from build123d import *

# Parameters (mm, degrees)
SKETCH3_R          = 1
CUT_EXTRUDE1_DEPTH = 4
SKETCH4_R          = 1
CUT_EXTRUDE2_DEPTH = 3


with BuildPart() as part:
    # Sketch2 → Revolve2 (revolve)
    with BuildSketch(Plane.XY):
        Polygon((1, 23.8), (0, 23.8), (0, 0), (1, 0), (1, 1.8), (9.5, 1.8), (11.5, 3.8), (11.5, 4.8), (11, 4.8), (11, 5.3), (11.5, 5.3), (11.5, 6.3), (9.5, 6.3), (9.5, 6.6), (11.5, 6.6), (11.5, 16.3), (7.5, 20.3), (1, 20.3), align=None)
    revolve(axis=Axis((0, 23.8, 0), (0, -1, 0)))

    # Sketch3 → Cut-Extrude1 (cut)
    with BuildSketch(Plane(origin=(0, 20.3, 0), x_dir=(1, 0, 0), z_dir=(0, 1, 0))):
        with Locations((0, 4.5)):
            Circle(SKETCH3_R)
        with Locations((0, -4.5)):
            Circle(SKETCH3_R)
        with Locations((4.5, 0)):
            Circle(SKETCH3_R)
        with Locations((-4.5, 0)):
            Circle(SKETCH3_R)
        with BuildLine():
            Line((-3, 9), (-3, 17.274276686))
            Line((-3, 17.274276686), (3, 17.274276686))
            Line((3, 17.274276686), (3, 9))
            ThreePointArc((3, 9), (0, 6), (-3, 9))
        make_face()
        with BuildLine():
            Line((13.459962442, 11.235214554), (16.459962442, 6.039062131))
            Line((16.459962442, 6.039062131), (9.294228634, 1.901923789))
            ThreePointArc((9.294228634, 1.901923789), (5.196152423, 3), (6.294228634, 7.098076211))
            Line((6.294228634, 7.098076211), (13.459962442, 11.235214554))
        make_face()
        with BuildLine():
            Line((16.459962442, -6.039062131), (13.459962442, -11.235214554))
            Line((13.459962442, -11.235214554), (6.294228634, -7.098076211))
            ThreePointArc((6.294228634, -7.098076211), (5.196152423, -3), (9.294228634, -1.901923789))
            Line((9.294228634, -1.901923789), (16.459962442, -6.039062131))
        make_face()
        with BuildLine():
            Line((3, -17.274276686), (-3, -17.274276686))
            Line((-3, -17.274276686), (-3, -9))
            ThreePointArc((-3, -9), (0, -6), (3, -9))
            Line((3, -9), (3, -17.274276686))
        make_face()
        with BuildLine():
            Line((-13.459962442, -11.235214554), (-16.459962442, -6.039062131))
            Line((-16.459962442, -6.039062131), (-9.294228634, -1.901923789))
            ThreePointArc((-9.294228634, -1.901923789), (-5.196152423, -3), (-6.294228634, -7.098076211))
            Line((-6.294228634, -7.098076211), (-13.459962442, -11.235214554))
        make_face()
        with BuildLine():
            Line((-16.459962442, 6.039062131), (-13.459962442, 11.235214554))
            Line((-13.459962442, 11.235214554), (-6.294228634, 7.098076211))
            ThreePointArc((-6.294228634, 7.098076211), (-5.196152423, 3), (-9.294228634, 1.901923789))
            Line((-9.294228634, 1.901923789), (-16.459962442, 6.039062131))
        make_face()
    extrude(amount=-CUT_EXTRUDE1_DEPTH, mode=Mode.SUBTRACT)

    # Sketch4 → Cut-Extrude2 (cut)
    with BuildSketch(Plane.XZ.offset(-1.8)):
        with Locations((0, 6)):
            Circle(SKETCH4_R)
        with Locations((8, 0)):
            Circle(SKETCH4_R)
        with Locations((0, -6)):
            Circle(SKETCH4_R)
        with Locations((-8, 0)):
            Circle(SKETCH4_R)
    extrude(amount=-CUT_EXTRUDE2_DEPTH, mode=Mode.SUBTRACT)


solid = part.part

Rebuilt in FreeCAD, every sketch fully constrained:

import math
import FreeCAD as App
import Part
import Sketcher
Q = App.Units.Quantity


def add_polygon(sketch, points):
    """Adds a closed chain of lines whose ends are joined by coincident constraints."""
    first, n = sketch.GeometryCount, len(points)
    for a, b in zip(points, points[1:] + points[:1]):
        sketch.addGeometry(Part.LineSegment(App.Vector(*a, 0), App.Vector(*b, 0)), False)
    for i in range(n):
        sketch.addConstraint(Sketcher.Constraint("Coincident", first + i, 2, first + (i + 1) % n, 1))

doc = App.newDocument("Part")
body = doc.addObject("PartDesign::Body", "Body")

sketch1 = body.newObject("Sketcher::SketchObject", "Sketch")
sketch1.AttachmentSupport = (doc.getObject("XY_Plane"), [""])
sketch1.MapMode = "FlatFace"
add_polygon(sketch1, [(1, 23.8), (0, 23.8), (0, 0), (1, 0), (1, 1.8), (9.5, 1.8), (11.5, 3.8), (11.5, 4.8), (11, 4.8), (11, 5.3), (11.5, 5.3), (11.5, 6.3), (9.5, 6.3), (9.5, 6.6), (11.5, 6.6), (11.5, 16.3), (7.5, 20.3), (1, 20.3)])
sketch1.addConstraint([
    Sketcher.Constraint("Horizontal", 0),
    Sketcher.Constraint("Vertical", 1),
    Sketcher.Constraint("Horizontal", 2),
    Sketcher.Constraint("Vertical", 3),
    Sketcher.Constraint("Horizontal", 4),
    Sketcher.Constraint("Vertical", 6),
    Sketcher.Constraint("Horizontal", 7),
    Sketcher.Constraint("Vertical", 8),
    Sketcher.Constraint("Horizontal", 9),
    Sketcher.Constraint("Vertical", 10),
    Sketcher.Constraint("Horizontal", 11),
    Sketcher.Constraint("Vertical", 12),
    Sketcher.Constraint("Horizontal", 13),
    Sketcher.Constraint("Vertical", 14),
    Sketcher.Constraint("Horizontal", 16),
    Sketcher.Constraint("Vertical", 17),
    Sketcher.Constraint("Coincident", 1, 2, -1, 1),
    Sketcher.Constraint("Perpendicular", 5, 15),
    Sketcher.Constraint("Vertical", 6, 2, 9, 2),
    Sketcher.Constraint("Vertical", 4, 2, 11, 2),
    Sketcher.Constraint("Vertical", 10, 2, 13, 2),
    Sketcher.Constraint("Vertical", 3, 2, 16, 2),
    Sketcher.Constraint("Equal", 2, 6),
    Sketcher.Constraint("Equal", 9, 8),
    Sketcher.Constraint("Equal", 6, 10),
    Sketcher.Constraint("DistanceX", 0, 2, 0, 1, 1.0),
    Sketcher.Constraint("DistanceX", 11, 2, 11, 1, 2.0),
    Sketcher.Constraint("Angle", 5, Q("45 deg")),
    Sketcher.Constraint("DistanceX", 4, 1, 4, 2, 8.5),
    Sketcher.Constraint("DistanceX", 7, 2, 7, 1, 0.5),
    Sketcher.Constraint("DistanceX", 16, 2, 16, 1, 6.5),
    Sketcher.Constraint("DistanceY", 1, 2, 1, 1, 23.8),
    Sketcher.Constraint("DistanceY", 3, 1, 3, 2, 1.8),
    Sketcher.Constraint("DistanceY", 12, 1, 12, 2, 0.3),
    Sketcher.Constraint("DistanceY", 14, 1, 14, 2, 9.7),
])
revolution = body.newObject("PartDesign::Revolution", "Revolution")
revolution.Profile = sketch1
revolution.ReferenceAxis = (sketch1, ["V_Axis"])
revolution.Angle = 360

sketch2 = body.newObject("Sketcher::SketchObject", "Sketch001")
sketch2.AttachmentSupport = (doc.getObject("XZ_Plane"), [""])
sketch2.MapMode = "FlatFace"
sketch2.AttachmentOffset = App.Placement(App.Vector(0, 0, -20.3), App.Rotation())
sketch2.addGeometry([
    Part.Circle(App.Vector(0, -4.5, 0), App.Vector(0, 0, 1), 1),
    Part.Circle(App.Vector(0, 4.5, 0), App.Vector(0, 0, 1), 1),
    Part.Circle(App.Vector(4.5, 0, 0), App.Vector(0, 0, 1), 1),
    Part.Circle(App.Vector(-4.5, 0, 0), App.Vector(0, 0, 1), 1),
    Part.LineSegment(App.Vector(-3, -17.3, 0), App.Vector(-3, -9, 0)),
    Part.ArcOfCircle(Part.Circle(App.Vector(0, -9, 0), App.Vector(0, 0, 1), 3), math.radians(0), math.radians(180)),
    Part.LineSegment(App.Vector(3, -9, 0), App.Vector(3, -17.3, 0)),
    Part.LineSegment(App.Vector(3, -17.3, 0), App.Vector(-3, -17.3, 0)),
    Part.LineSegment(App.Vector(16.5, -6, 0), App.Vector(13.5, -11.2, 0)),
    Part.LineSegment(App.Vector(13.5, -11.2, 0), App.Vector(6.3, -7.1, 0)),
    Part.ArcOfCircle(Part.Circle(App.Vector(7.8, -4.5, 0), App.Vector(0, 0, 1), 3), math.radians(60), math.radians(240)),
    Part.LineSegment(App.Vector(9.3, -1.9, 0), App.Vector(16.5, -6, 0)),
    Part.LineSegment(App.Vector(13.5, 11.2, 0), App.Vector(16.5, 6, 0)),
    Part.LineSegment(App.Vector(16.5, 6, 0), App.Vector(9.3, 1.9, 0)),
    Part.ArcOfCircle(Part.Circle(App.Vector(7.8, 4.5, 0), App.Vector(0, 0, 1), 3), math.radians(120), math.radians(300)),
    Part.LineSegment(App.Vector(6.3, 7.1, 0), App.Vector(13.5, 11.2, 0)),
    Part.LineSegment(App.Vector(-3, 17.3, 0), App.Vector(3, 17.3, 0)),
    Part.LineSegment(App.Vector(3, 17.3, 0), App.Vector(3, 9, 0)),
    Part.ArcOfCircle(Part.Circle(App.Vector(0, 9, 0), App.Vector(0, 0, 1), 3), math.radians(180), math.radians(360)),
    Part.LineSegment(App.Vector(-3, 9, 0), App.Vector(-3, 17.3, 0)),
    Part.LineSegment(App.Vector(-16.5, 6, 0), App.Vector(-13.5, 11.2, 0)),
    Part.LineSegment(App.Vector(-13.5, 11.2, 0), App.Vector(-6.3, 7.1, 0)),
    Part.ArcOfCircle(Part.Circle(App.Vector(-7.8, 4.5, 0), App.Vector(0, 0, 1), 3), math.radians(-120), math.radians(60)),
    Part.LineSegment(App.Vector(-9.3, 1.9, 0), App.Vector(-16.5, 6, 0)),
    Part.LineSegment(App.Vector(-13.5, -11.2, 0), App.Vector(-16.5, -6, 0)),
    Part.LineSegment(App.Vector(-16.5, -6, 0), App.Vector(-9.3, -1.9, 0)),
    Part.ArcOfCircle(Part.Circle(App.Vector(-7.8, -4.5, 0), App.Vector(0, 0, 1), 3), math.radians(-60), math.radians(120)),
    Part.LineSegment(App.Vector(-6.3, -7.1, 0), App.Vector(-13.5, -11.2, 0)),
], False)
sketch2.addConstraint([
    Sketcher.Constraint("Tangent", 4, 2, 5, 2),
    Sketcher.Constraint("Tangent", 5, 1, 6, 1),
    Sketcher.Constraint("Coincident", 6, 2, 7, 1),
    Sketcher.Constraint("Coincident", 7, 2, 4, 1),
    Sketcher.Constraint("Coincident", 8, 2, 9, 1),
    Sketcher.Constraint("Tangent", 9, 2, 10, 2),
    Sketcher.Constraint("Tangent", 10, 1, 11, 1),
    Sketcher.Constraint("Coincident", 11, 2, 8, 1),
    Sketcher.Constraint("Coincident", 12, 2, 13, 1),
    Sketcher.Constraint("Tangent", 13, 2, 14, 2),
    Sketcher.Constraint("Tangent", 14, 1, 15, 1),
    Sketcher.Constraint("Coincident", 15, 2, 12, 1),
    Sketcher.Constraint("Coincident", 16, 2, 17, 1),
    Sketcher.Constraint("Tangent", 17, 2, 18, 2),
    Sketcher.Constraint("Tangent", 18, 1, 19, 1),
    Sketcher.Constraint("Coincident", 19, 2, 16, 1),
    Sketcher.Constraint("Coincident", 20, 2, 21, 1),
    Sketcher.Constraint("Tangent", 21, 2, 22, 2),
    Sketcher.Constraint("Tangent", 22, 1, 23, 1),
    Sketcher.Constraint("Coincident", 23, 2, 20, 1),
    Sketcher.Constraint("Coincident", 24, 2, 25, 1),
    Sketcher.Constraint("Tangent", 25, 2, 26, 2),
    Sketcher.Constraint("Tangent", 26, 1, 27, 1),
    Sketcher.Constraint("Coincident", 27, 2, 24, 1),
    Sketcher.Constraint("Vertical", 4),
    Sketcher.Constraint("Vertical", 6),
    Sketcher.Constraint("Horizontal", 7),
    Sketcher.Constraint("Horizontal", 16),
    Sketcher.Constraint("Vertical", 17),
    Sketcher.Constraint("Vertical", 19),
    Sketcher.Constraint("Equal", 0, 1),
    Sketcher.Constraint("Equal", 1, 2),
    Sketcher.Constraint("Equal", 2, 3),
    Sketcher.Constraint("Equal", 5, 10),
    Sketcher.Constraint("Equal", 10, 14),
    Sketcher.Constraint("Equal", 14, 18),
    Sketcher.Constraint("Equal", 18, 22),
    Sketcher.Constraint("Equal", 22, 26),
    Sketcher.Constraint("Symmetric", 0, 3, 1, 3, -1, 1),
    Sketcher.Constraint("Symmetric", 2, 3, 3, 3, -1, 1),
    Sketcher.Constraint("Symmetric", 5, 3, 18, 3, -1, 1),
    Sketcher.Constraint("Symmetric", 10, 3, 22, 3, -1, 1),
    Sketcher.Constraint("Symmetric", 14, 3, 26, 3, -1, 1),
    Sketcher.Constraint("Symmetric", 8, 2, 20, 2, -1, 1),
    Sketcher.Constraint("Symmetric", 11, 2, 23, 2, -1, 1),
    Sketcher.Constraint("Symmetric", 12, 2, 24, 2, -1, 1),
    Sketcher.Constraint("Symmetric", 15, 2, 27, 2, -1, 1),
    Sketcher.Constraint("Symmetric", 14, 3, 22, 3, -2),
    Sketcher.Constraint("Symmetric", 15, 2, 20, 2, -2),
    Sketcher.Constraint("Symmetric", 12, 2, 23, 2, -2),
    Sketcher.Constraint("Symmetric", 6, 2, 16, 2, -1),
    Sketcher.Constraint("PointOnObject", 0, 3, -2),
    Sketcher.Constraint("PointOnObject", 2, 3, -1),
    Sketcher.Constraint("Perpendicular", 8, 9),
    Sketcher.Constraint("Parallel", 9, 11),
    Sketcher.Constraint("Horizontal", 0, 3, 10, 3),
    Sketcher.Constraint("Diameter", 0, 2.0),
    Sketcher.Constraint("Radius", 5, 3.0),
    Sketcher.Constraint("Angle", 8, Q("-120 deg")),
    Sketcher.Constraint("DistanceY", 5, 3, -1, 1, 9.0),
    Sketcher.Constraint("DistanceY", 0, 3, 1, 3, 9.0),
    Sketcher.Constraint("DistanceX", 3, 3, 2, 3, 9.0),
    Sketcher.Constraint("DistanceY", 14, 1, 16, 2, 10.1762),
    Sketcher.Constraint("DistanceX", -1, 1, 10, 3, 7.794229),
    Sketcher.Constraint("DistanceY", 11, 2, 10, 1, 4.137138),
])
pocket1 = body.newObject("PartDesign::Pocket", "Pocket")
pocket1.Profile = sketch2
pocket1.Length = 4
pocket1.Reversed = True

sketch3 = body.newObject("Sketcher::SketchObject", "Sketch002")
sketch3.AttachmentSupport = (doc.getObject("XZ_Plane"), [""])
sketch3.MapMode = "FlatFace"
sketch3.AttachmentOffset = App.Placement(App.Vector(0, 0, -1.8), App.Rotation())
sketch3.addGeometry([
    Part.Circle(App.Vector(0, 6, 0), App.Vector(0, 0, 1), 1),
    Part.Circle(App.Vector(8, 0, 0), App.Vector(0, 0, 1), 1),
    Part.Circle(App.Vector(0, -6, 0), App.Vector(0, 0, 1), 1),
    Part.Circle(App.Vector(-8, 0, 0), App.Vector(0, 0, 1), 1),
], False)
sketch3.addConstraint([
    Sketcher.Constraint("Equal", 0, 1),
    Sketcher.Constraint("Equal", 1, 2),
    Sketcher.Constraint("Equal", 2, 3),
    Sketcher.Constraint("Symmetric", 0, 3, 2, 3, -1, 1),
    Sketcher.Constraint("Symmetric", 1, 3, 3, 3, -1, 1),
    Sketcher.Constraint("PointOnObject", 0, 3, -2),
    Sketcher.Constraint("PointOnObject", 1, 3, -1),
    Sketcher.Constraint("Diameter", 0, 2.0),
    Sketcher.Constraint("DistanceY", -1, 1, 0, 3, 6.0),
    Sketcher.Constraint("DistanceX", -1, 1, 1, 3, 8.0),
])
pocket2 = body.newObject("PartDesign::Pocket", "Pocket001")
pocket2.Profile = sketch3
pocket2.Length = 3

doc.recompute()
